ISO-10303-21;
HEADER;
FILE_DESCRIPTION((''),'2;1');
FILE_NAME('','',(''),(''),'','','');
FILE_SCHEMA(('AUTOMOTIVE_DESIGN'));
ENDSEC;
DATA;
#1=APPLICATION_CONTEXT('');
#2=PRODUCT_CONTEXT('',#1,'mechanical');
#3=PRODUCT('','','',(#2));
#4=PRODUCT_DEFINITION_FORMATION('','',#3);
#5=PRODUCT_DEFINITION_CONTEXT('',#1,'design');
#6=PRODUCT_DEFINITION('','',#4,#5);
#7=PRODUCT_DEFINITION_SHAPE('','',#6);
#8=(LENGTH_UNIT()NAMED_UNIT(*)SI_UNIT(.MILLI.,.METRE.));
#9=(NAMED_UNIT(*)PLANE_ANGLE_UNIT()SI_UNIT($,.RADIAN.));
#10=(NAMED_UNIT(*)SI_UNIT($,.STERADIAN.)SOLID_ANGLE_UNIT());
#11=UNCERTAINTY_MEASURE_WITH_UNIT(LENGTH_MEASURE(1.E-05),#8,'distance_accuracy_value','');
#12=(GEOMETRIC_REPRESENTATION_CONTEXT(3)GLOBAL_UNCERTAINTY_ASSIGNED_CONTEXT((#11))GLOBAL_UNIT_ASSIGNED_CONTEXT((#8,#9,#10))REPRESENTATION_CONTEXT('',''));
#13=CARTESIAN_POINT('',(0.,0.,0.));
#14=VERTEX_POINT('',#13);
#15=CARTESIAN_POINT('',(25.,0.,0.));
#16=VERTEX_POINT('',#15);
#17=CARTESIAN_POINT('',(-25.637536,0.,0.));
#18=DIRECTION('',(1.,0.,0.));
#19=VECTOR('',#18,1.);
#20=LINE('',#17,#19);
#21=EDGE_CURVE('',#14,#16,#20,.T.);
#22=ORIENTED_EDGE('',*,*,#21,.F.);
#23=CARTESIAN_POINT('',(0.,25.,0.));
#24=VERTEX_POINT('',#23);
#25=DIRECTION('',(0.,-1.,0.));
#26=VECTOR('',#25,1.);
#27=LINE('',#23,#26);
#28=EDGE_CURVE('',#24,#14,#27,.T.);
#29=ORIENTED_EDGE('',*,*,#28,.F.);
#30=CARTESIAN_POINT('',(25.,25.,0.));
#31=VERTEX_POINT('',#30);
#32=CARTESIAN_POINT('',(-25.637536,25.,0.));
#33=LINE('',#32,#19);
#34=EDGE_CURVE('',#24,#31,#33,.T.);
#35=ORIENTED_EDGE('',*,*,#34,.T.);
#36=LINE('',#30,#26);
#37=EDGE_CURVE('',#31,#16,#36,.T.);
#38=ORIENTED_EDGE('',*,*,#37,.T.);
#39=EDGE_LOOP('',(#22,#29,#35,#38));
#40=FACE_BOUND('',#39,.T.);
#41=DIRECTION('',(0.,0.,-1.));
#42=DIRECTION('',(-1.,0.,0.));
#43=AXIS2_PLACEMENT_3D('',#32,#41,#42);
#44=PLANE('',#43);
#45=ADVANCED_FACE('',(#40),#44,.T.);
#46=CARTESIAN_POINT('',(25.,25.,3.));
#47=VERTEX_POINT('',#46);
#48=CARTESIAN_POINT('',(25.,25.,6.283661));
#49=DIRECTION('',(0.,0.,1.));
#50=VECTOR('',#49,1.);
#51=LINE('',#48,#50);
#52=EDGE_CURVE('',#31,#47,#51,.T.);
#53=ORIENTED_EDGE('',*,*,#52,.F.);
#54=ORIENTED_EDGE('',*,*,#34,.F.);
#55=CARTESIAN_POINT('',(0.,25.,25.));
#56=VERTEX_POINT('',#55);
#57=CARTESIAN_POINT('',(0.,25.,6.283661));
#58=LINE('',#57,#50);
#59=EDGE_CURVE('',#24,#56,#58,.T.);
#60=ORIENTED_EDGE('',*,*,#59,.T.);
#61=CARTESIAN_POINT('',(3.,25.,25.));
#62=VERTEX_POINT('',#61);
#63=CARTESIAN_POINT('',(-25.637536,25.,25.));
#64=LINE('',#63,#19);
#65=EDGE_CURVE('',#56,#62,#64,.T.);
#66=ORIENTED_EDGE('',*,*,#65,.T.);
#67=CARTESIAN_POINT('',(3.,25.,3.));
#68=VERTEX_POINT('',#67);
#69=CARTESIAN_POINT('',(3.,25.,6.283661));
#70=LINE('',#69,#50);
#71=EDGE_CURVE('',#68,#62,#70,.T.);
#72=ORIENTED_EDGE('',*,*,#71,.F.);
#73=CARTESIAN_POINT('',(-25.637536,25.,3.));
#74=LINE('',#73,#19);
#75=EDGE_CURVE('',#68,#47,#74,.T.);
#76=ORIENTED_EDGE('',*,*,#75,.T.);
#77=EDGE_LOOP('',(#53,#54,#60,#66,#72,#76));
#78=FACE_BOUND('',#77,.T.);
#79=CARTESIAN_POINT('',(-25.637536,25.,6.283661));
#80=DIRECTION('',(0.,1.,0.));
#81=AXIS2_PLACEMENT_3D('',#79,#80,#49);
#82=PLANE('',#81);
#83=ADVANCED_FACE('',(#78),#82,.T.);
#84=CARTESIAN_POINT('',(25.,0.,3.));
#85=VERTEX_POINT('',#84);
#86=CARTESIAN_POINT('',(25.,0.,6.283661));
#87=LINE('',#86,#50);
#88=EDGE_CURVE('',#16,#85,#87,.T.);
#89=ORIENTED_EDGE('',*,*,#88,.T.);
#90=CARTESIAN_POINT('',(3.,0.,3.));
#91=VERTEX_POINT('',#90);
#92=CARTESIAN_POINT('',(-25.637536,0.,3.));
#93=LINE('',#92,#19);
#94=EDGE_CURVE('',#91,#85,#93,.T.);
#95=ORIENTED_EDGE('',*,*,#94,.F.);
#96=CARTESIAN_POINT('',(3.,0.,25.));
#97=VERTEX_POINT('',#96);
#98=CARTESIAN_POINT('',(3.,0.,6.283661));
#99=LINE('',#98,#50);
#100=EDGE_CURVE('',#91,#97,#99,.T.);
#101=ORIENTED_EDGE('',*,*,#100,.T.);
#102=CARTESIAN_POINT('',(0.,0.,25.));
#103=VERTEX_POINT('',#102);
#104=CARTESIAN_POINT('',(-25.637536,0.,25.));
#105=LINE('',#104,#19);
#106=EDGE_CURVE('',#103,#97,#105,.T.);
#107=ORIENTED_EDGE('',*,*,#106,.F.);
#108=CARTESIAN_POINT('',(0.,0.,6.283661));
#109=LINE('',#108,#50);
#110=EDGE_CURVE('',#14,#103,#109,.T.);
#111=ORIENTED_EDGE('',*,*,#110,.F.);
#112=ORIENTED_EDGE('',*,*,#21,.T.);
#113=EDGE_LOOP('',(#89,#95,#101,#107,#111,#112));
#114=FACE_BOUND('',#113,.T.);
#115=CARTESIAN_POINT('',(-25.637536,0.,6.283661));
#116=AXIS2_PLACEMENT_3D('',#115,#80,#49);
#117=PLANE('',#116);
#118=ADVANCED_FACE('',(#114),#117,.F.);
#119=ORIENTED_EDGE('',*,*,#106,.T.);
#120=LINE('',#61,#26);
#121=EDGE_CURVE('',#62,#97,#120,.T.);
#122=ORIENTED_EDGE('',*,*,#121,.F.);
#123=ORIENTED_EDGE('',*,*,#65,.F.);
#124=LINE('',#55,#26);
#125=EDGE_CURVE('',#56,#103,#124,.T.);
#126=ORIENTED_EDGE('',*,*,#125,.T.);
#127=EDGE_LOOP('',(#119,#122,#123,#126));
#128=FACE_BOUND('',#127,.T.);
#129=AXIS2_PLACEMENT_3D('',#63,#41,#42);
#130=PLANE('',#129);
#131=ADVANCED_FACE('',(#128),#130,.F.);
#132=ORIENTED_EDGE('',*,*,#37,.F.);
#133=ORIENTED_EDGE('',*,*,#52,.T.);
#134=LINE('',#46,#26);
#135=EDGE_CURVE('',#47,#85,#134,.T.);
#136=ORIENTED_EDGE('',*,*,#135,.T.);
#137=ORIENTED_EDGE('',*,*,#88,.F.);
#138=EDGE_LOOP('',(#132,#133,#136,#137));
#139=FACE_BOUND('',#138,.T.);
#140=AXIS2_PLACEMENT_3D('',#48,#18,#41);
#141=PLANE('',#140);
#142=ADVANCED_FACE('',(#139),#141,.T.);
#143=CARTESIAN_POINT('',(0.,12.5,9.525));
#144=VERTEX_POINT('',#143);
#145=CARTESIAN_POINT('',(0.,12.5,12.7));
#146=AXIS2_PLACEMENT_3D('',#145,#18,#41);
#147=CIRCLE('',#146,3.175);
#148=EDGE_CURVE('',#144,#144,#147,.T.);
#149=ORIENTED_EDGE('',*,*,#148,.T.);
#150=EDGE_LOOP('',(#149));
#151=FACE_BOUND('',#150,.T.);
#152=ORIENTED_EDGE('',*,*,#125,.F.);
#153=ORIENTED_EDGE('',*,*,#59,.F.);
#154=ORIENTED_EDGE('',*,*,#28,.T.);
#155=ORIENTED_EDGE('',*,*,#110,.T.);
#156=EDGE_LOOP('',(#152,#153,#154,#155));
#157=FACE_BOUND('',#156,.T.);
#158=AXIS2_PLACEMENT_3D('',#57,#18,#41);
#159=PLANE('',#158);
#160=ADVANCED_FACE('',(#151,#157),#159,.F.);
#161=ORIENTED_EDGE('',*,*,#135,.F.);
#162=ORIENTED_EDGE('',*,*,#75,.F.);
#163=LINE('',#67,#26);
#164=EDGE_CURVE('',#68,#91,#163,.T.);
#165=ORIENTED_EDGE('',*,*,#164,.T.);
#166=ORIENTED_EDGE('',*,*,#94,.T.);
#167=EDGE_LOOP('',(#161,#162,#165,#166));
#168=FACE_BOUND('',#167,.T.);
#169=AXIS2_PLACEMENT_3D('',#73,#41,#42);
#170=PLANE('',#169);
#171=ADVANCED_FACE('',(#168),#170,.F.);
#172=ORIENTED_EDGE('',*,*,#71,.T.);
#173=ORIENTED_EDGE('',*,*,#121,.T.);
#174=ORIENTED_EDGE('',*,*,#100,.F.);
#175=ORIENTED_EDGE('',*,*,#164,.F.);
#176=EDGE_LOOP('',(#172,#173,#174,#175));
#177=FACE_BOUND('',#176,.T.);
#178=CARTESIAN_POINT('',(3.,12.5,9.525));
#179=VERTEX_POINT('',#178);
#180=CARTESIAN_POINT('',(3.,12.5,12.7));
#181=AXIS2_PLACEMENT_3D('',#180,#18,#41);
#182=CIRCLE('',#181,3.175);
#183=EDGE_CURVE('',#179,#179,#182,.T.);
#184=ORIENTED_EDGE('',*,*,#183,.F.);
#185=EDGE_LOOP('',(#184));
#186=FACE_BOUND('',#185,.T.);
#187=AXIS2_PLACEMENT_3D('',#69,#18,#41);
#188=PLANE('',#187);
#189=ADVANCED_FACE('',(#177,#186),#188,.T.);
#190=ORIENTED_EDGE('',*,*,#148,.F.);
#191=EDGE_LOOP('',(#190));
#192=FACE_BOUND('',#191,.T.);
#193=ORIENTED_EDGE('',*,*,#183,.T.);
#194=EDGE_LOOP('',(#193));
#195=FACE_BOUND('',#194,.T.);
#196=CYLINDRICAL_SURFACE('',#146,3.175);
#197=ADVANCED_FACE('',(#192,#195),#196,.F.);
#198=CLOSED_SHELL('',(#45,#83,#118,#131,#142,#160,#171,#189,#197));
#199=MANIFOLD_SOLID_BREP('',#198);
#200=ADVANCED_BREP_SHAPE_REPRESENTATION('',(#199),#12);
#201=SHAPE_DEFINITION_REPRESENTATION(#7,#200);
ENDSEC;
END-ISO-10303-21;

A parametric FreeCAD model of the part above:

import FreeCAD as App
import Part
import Sketcher
from FreeCAD import Vector

doc = App.newDocument("Part")
params = doc.addObject("Spreadsheet::Sheet", "Params")
for row, (alias, value) in enumerate([
    ("sketch1_width", "3 mm"),
    ("sketch1_width2", "22 mm"),
    ("pad1_length", "25 mm"),
    ("sketch2_diameter", "6.35 mm"),
], start=1):
    params.set(f"A{row}", alias)
    params.set(f"B{row}", "=" + value)
    params.setAlias(f"B{row}", alias)

body = doc.addObject("PartDesign::Body", "Body")

# Sketch on XZ plane
sketch1 = body.newObject("Sketcher::SketchObject", "Sketch")
sketch1.AttachmentSupport = (doc.getObject("XZ_Plane"), [""])
sketch1.MapMode = "FlatFace"
sketch1.addGeometry([
    Part.LineSegment(Vector(0, 0, 0), Vector(0, 25, 0)),  # 0
    Part.LineSegment(Vector(0, 25, 0), Vector(3, 25, 0)),  # 1
    Part.LineSegment(Vector(3, 25, 0), Vector(3, 3, 0)),  # 2
    Part.LineSegment(Vector(3, 3, 0), Vector(25, 3, 0)),  # 3
    Part.LineSegment(Vector(25, 3, 0), Vector(25, 0, 0)),  # 4
    Part.LineSegment(Vector(25, 0, 0), Vector(0, 0, 0)),  # 5
], False)
sketch1.addConstraint([
    Sketcher.Constraint("Coincident", 0, 2, 1, 1),
    Sketcher.Constraint("Coincident", 1, 2, 2, 1),
    Sketcher.Constraint("Coincident", 2, 2, 3, 1),
    Sketcher.Constraint("Coincident", 3, 2, 4, 1),
    Sketcher.Constraint("Coincident", 4, 2, 5, 1),
    Sketcher.Constraint("Coincident", 5, 2, 0, 1),
    Sketcher.Constraint("Vertical", 0),
    Sketcher.Constraint("Horizontal", 1),
    Sketcher.Constraint("Vertical", 2),
    Sketcher.Constraint("Horizontal", 3),
    Sketcher.Constraint("Vertical", 4),
    Sketcher.Constraint("Horizontal", 5),
    Sketcher.Constraint("Coincident", 5, 2, -1, 1),
    Sketcher.Constraint("Equal", 5, 0),
    Sketcher.Constraint("Equal", 3, 2),
    Sketcher.Constraint("DistanceX", 1, 1, 1, 2, 3.0),
    Sketcher.Constraint("DistanceX", 3, 1, 3, 2, 22.0),
])
sketch1.setExpression("Constraints[15]", "Params.sketch1_width")
sketch1.setExpression("Constraints[16]", "Params.sketch1_width2")
pad1 = body.newObject("PartDesign::Pad", "Pad")
pad1.Profile = sketch1
pad1.setExpression("Length", "Params.pad1_length")
pad1.Reversed = True

# Sketch on YZ plane
sketch2 = body.newObject("Sketcher::SketchObject", "Sketch001")
sketch2.AttachmentSupport = (doc.getObject("YZ_Plane"), [""])
sketch2.MapMode = "FlatFace"
sketch2.AttachmentOffset = App.Placement(Vector(0, 0, 3), App.Rotation())
sketch2.addGeometry(Part.Circle(Vector(12.5, 12.7, 0), Vector(0, 0, 1), 3.2), False)
sketch2.addConstraint([
    Sketcher.Constraint("Diameter", 0, 6.35),
    Sketcher.Constraint("DistanceX", -1, 1, 0, 3, 12.5),
    Sketcher.Constraint("DistanceY", -1, 1, 0, 3, 12.7),
])
sketch2.setExpression("Constraints[0]", "Params.sketch2_diameter")
pocket1 = body.newObject("PartDesign::Pocket", "Pocket")
pocket1.Profile = sketch2
pocket1.Type = "ThroughAll"

doc.recompute()
